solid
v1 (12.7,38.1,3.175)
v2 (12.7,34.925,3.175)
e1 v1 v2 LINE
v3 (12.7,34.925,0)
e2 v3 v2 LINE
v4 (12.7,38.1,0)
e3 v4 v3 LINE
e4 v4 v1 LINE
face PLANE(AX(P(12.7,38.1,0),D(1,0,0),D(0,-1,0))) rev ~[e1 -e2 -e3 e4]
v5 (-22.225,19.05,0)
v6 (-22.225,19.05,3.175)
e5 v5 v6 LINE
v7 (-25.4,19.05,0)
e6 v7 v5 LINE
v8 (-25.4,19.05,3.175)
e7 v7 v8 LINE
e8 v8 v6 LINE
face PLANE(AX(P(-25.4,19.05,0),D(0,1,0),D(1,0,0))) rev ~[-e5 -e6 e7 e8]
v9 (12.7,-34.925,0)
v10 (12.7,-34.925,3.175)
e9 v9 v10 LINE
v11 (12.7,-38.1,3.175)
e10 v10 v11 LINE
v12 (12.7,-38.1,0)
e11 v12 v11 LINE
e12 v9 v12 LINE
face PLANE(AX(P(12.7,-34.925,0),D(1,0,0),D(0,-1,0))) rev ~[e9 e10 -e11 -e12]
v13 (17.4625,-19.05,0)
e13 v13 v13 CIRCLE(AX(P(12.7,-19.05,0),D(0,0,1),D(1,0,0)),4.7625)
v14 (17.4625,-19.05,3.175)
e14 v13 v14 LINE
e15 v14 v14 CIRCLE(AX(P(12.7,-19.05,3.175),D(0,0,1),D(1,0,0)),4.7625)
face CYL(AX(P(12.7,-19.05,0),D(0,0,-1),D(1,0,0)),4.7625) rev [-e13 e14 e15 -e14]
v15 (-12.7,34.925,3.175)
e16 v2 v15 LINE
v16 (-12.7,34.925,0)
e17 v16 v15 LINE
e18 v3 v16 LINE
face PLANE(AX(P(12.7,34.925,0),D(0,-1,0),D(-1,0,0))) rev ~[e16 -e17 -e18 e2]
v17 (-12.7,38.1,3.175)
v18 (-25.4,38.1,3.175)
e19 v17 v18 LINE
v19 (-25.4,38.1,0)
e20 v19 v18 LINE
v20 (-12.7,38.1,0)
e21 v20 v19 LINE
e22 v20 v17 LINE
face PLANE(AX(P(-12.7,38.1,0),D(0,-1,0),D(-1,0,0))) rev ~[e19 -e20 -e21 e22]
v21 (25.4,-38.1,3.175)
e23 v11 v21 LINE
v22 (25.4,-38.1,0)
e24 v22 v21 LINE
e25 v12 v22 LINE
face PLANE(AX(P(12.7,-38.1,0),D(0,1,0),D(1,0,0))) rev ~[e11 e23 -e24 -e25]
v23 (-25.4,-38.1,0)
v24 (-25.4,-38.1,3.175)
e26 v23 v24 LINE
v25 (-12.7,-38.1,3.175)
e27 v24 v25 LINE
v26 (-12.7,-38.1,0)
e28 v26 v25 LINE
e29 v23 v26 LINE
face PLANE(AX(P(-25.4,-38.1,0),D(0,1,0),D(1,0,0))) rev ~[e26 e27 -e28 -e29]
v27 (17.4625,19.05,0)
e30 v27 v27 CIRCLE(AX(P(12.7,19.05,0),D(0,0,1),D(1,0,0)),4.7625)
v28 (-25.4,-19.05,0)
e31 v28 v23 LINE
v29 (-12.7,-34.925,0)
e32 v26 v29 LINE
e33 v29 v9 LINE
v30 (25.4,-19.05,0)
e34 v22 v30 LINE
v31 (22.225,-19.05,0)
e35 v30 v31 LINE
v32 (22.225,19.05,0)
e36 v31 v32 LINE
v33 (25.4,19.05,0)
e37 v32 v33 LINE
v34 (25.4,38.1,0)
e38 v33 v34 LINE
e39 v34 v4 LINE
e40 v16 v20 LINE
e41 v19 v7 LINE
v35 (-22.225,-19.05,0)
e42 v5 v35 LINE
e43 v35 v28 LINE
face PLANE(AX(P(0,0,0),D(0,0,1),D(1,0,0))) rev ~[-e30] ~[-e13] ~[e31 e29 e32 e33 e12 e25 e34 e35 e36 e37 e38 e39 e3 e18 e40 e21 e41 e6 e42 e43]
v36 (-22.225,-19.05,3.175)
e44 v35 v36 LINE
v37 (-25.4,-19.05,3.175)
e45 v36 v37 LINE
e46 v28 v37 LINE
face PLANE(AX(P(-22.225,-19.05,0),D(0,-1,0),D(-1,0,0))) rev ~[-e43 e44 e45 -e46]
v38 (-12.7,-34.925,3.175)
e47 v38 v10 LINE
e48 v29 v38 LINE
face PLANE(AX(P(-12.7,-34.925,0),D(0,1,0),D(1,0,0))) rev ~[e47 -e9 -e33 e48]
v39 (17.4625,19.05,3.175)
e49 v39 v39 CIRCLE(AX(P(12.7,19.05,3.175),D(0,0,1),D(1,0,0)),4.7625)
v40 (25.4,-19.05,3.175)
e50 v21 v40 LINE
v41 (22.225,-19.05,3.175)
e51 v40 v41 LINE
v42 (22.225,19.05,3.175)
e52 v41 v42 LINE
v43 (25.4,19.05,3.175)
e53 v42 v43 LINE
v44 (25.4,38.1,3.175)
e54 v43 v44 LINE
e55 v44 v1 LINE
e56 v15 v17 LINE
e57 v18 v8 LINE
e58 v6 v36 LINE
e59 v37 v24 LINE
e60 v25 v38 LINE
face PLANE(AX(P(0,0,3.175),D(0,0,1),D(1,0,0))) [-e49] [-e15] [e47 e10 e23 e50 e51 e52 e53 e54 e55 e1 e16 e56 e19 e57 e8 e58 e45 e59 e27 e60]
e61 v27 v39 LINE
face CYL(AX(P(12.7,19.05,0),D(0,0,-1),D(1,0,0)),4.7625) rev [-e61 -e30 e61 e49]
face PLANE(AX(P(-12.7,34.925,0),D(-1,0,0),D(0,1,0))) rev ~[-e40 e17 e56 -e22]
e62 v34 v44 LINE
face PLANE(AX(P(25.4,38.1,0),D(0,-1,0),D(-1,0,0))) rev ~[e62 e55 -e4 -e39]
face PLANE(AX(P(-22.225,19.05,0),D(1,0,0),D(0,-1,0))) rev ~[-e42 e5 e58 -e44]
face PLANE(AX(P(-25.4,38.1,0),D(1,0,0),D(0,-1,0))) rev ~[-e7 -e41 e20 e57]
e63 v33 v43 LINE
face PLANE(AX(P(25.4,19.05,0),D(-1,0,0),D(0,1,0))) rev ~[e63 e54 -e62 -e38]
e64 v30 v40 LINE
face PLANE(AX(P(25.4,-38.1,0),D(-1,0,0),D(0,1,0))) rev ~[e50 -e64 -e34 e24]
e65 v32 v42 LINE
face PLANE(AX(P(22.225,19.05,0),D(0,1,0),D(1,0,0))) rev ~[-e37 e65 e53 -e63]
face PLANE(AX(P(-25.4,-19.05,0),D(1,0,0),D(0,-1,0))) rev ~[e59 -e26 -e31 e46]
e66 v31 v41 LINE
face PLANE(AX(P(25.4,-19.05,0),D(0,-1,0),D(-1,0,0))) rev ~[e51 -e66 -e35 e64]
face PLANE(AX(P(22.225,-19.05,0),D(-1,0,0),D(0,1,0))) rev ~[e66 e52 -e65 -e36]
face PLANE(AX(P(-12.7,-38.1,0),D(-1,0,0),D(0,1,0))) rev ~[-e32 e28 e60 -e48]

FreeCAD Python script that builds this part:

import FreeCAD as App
import Part
import Sketcher
Q = App.Units.Quantity

doc = App.newDocument("Part")
body = doc.addObject("PartDesign::Body", "Body")

sketch1 = body.newObject("Sketcher::SketchObject", "Sketch")
sketch1.AttachmentSupport = (doc.getObject("XY_Plane"), [""])
sketch1.MapMode = "FlatFace"
sketch1.addGeometry([
    Part.LineSegment(App.Vector(25.4, 19.1, 0), App.Vector(25.4, 38.1, 0)),
    Part.LineSegment(App.Vector(25.4, 38.1, 0), App.Vector(12.7, 38.1, 0)),
    Part.LineSegment(App.Vector(12.7, 38.1, 0), App.Vector(12.7, 34.9, 0)),
    Part.LineSegment(App.Vector(12.7, 34.9, 0), App.Vector(-12.7, 34.9, 0)),
    Part.LineSegment(App.Vector(-12.7, 34.9, 0), App.Vector(-12.7, 38.1, 0)),
    Part.LineSegment(App.Vector(-12.7, 38.1, 0), App.Vector(-25.4, 38.1, 0)),
    Part.LineSegment(App.Vector(-25.4, 38.1, 0), App.Vector(-25.4, 19.1, 0)),
    Part.LineSegment(App.Vector(-25.4, 19.1, 0), App.Vector(-22.2, 19.1, 0)),
    Part.LineSegment(App.Vector(-22.2, 19.1, 0), App.Vector(-22.2, -19.1, 0)),
    Part.LineSegment(App.Vector(-22.2, -19.1, 0), App.Vector(-25.4, -19.1, 0)),
    Part.LineSegment(App.Vector(-25.4, -19.1, 0), App.Vector(-25.4, -38.1, 0)),
    Part.LineSegment(App.Vector(-25.4, -38.1, 0), App.Vector(-12.7, -38.1, 0)),
    Part.LineSegment(App.Vector(-12.7, -38.1, 0), App.Vector(-12.7, -34.9, 0)),
    Part.LineSegment(App.Vector(-12.7, -34.9, 0), App.Vector(12.7, -34.9, 0)),
    Part.LineSegment(App.Vector(12.7, -34.9, 0), App.Vector(12.7, -38.1, 0)),
    Part.LineSegment(App.Vector(12.7, -38.1, 0), App.Vector(25.4, -38.1, 0)),
    Part.LineSegment(App.Vector(25.4, -38.1, 0), App.Vector(25.4, -19.1, 0)),
    Part.LineSegment(App.Vector(25.4, -19.1, 0), App.Vector(22.2, -19.1, 0)),
    Part.LineSegment(App.Vector(22.2, -19.1, 0), App.Vector(22.2, 19.1, 0)),
    Part.LineSegment(App.Vector(22.2, 19.1, 0), App.Vector(25.4, 19.1, 0)),
    Part.Circle(App.Vector(12.7, -19.1, 0), App.Vector(0, 0, 1), 4.8),
    Part.Circle(App.Vector(12.7, 19.1, 0), App.Vector(0, 0, 1), 4.8),
], False)
sketch1.addConstraint([
    Sketcher.Constraint("Coincident", 0, 2, 1, 1),
    Sketcher.Constraint("Coincident", 1, 2, 2, 1),
    Sketcher.Constraint("Coincident", 2, 2, 3, 1),
    Sketcher.Constraint("Coincident", 3, 2, 4, 1),
    Sketcher.Constraint("Coincident", 4, 2, 5, 1),
    Sketcher.Constraint("Coincident", 5, 2, 6, 1),
    Sketcher.Constraint("Coincident", 6, 2, 7, 1),
    Sketcher.Constraint("Coincident", 7, 2, 8, 1),
    Sketcher.Constraint("Coincident", 8, 2, 9, 1),
    Sketcher.Constraint("Coincident", 9, 2, 10, 1),
    Sketcher.Constraint("Coincident", 10, 2, 11, 1),
    Sketcher.Constraint("Coincident", 11, 2, 12, 1),
    Sketcher.Constraint("Coincident", 12, 2, 13, 1),
    Sketcher.Constraint("Coincident", 13, 2, 14, 1),
    Sketcher.Constraint("Coincident", 14, 2, 15, 1),
    Sketcher.Constraint("Coincident", 15, 2, 16, 1),
    Sketcher.Constraint("Coincident", 16, 2, 17, 1),
    Sketcher.Constraint("Coincident", 17, 2, 18, 1),
    Sketcher.Constraint("Coincident", 18, 2, 19, 1),
    Sketcher.Constraint("Coincident", 19, 2, 0, 1),
    Sketcher.Constraint("Vertical", 0),
    Sketcher.Constraint("Horizontal", 1),
    Sketcher.Constraint("Vertical", 2),
    Sketcher.Constraint("Horizontal", 3),
    Sketcher.Constraint("Vertical", 4),
    Sketcher.Constraint("Horizontal", 5),
    Sketcher.Constraint("Vertical", 6),
    Sketcher.Constraint("Horizontal", 7),
    Sketcher.Constraint("Vertical", 8),
    Sketcher.Constraint("Horizontal", 9),
    Sketcher.Constraint("Vertical", 10),
    Sketcher.Constraint("Horizontal", 11),
    Sketcher.Constraint("Vertical", 12),
    Sketcher.Constraint("Horizontal", 13),
    Sketcher.Constraint("Vertical", 14),
    Sketcher.Constraint("Horizontal", 15),
    Sketcher.Constraint("Vertical", 16),
    Sketcher.Constraint("Horizontal", 17),
    Sketcher.Constraint("Vertical", 18),
    Sketcher.Constraint("Horizontal", 19),
    Sketcher.Constraint("Equal", 20, 21),
    Sketcher.Constraint("Symmetric", 0, 2, 10, 2, -1, 1),
    Sketcher.Constraint("Symmetric", 2, 2, 12, 2, -1, 1),
    Sketcher.Constraint("Symmetric", 4, 2, 14, 2, -1, 1),
    Sketcher.Constraint("Symmetric", 6, 2, 16, 2, -1, 1),
    Sketcher.Constraint("Symmetric", 8, 2, 18, 2, -1, 1),
    Sketcher.Constraint("Symmetric", 1, 2, 4, 2, -2),
    Sketcher.Constraint("Symmetric", 9, 2, 16, 2, -2),
    Sketcher.Constraint("Symmetric", 20, 3, 21, 3, -1),
    Sketcher.Constraint("Horizontal", 21, 3, 6, 2),
    Sketcher.Constraint("Vertical", 21, 3, 1, 2),
    Sketcher.Constraint("Equal", 19, 2),
    Sketcher.Constraint("DistanceX", 3, 2, 3, 1, Q("1 in")),
    Sketcher.Constraint("Diameter", 20, Q("0.375 in")),
    Sketcher.Constraint("DistanceX", 1, 2, 1, 1, Q("0.5 in")),
    Sketcher.Constraint("DistanceY", 8, 2, 8, 1, Q("1.5 in")),
    Sketcher.Constraint("DistanceY", 0, 1, 0, 2, Q("0.75 in")),
    Sketcher.Constraint("DistanceX", 7, 1, 7, 2, Q("0.125 in")),
])
pad1 = body.newObject("PartDesign::Pad", "Pad")
pad1.Profile = sketch1
pad1.Length = Q("0.125 in")

doc.recompute()
